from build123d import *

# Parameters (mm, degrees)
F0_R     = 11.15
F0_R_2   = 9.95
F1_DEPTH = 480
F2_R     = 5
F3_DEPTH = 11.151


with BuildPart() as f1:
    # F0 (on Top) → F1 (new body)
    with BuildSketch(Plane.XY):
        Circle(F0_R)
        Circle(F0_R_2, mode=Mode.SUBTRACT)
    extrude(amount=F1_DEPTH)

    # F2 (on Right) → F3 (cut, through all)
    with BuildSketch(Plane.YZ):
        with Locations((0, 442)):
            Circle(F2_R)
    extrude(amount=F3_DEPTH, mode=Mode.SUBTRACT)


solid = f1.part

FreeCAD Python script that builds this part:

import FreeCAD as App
import Part
import Sketcher

doc = App.newDocument("Part")
params = doc.addObject("Spreadsheet::Sheet", "Params")
for row, (alias, value) in enumerate([
    ("sketch1_diameter", "22.3 mm"),
    ("sketch1_diameter2", "19.9 mm"),
    ("pad1_length", "480 mm"),
    ("sketch2_diameter", "10 mm"),
], start=1):
    params.set(f"A{row}", alias)
    params.set(f"B{row}", "=" + value)
    params.setAlias(f"B{row}", alias)

body = doc.addObject("PartDesign::Body", "Body")

# Sketch on XY plane
sketch1 = body.newObject("Sketcher::SketchObject", "Sketch")
sketch1.AttachmentSupport = (doc.getObject("XY_Plane"), [""])
sketch1.MapMode = "FlatFace"
sketch1.addGeometry(Part.Circle(App.Vector(0, 0, 0), App.Vector(0, 0, 1), 11), False)
sketch1.addGeometry(Part.Circle(App.Vector(0, 0, 0), App.Vector(0, 0, 1), 10), False)
sketch1.addConstraint(Sketcher.Constraint("Coincident", 0, 3, -1, 1))
sketch1.addConstraint(Sketcher.Constraint("Coincident", 1, 3, -1, 1))
sketch1.addConstraint(Sketcher.Constraint("Diameter", 0, 22.3))
sketch1.addConstraint(Sketcher.Constraint("Diameter", 1, 19.9))
sketch1.setExpression("Constraints[2]", "Params.sketch1_diameter")
sketch1.setExpression("Constraints[3]", "Params.sketch1_diameter2")
pad1 = body.newObject("PartDesign::Pad", "Pad")
pad1.Profile = sketch1
pad1.setExpression("Length", "Params.pad1_length")

# Sketch on YZ plane
sketch2 = body.newObject("Sketcher::SketchObject", "Sketch001")
sketch2.AttachmentSupport = (doc.getObject("YZ_Plane"), [""])
sketch2.MapMode = "FlatFace"
sketch2.addGeometry(Part.Circle(App.Vector(0, 442, 0), App.Vector(0, 0, 1), 5), False)
sketch2.addConstraint(Sketcher.Constraint("PointOnObject", 0, 3, -2))
sketch2.addConstraint(Sketcher.Constraint("Diameter", 0, 10.0))
sketch2.addConstraint(Sketcher.Constraint("DistanceY", -1, 1, 0, 3, 442.0))
sketch2.setExpression("Constraints[1]", "Params.sketch2_diameter")
pocket1 = body.newObject("PartDesign::Pocket", "Pocket")
pocket1.Profile = sketch2
pocket1.Type = "ThroughAll"
pocket1.Reversed = True

doc.recompute()
